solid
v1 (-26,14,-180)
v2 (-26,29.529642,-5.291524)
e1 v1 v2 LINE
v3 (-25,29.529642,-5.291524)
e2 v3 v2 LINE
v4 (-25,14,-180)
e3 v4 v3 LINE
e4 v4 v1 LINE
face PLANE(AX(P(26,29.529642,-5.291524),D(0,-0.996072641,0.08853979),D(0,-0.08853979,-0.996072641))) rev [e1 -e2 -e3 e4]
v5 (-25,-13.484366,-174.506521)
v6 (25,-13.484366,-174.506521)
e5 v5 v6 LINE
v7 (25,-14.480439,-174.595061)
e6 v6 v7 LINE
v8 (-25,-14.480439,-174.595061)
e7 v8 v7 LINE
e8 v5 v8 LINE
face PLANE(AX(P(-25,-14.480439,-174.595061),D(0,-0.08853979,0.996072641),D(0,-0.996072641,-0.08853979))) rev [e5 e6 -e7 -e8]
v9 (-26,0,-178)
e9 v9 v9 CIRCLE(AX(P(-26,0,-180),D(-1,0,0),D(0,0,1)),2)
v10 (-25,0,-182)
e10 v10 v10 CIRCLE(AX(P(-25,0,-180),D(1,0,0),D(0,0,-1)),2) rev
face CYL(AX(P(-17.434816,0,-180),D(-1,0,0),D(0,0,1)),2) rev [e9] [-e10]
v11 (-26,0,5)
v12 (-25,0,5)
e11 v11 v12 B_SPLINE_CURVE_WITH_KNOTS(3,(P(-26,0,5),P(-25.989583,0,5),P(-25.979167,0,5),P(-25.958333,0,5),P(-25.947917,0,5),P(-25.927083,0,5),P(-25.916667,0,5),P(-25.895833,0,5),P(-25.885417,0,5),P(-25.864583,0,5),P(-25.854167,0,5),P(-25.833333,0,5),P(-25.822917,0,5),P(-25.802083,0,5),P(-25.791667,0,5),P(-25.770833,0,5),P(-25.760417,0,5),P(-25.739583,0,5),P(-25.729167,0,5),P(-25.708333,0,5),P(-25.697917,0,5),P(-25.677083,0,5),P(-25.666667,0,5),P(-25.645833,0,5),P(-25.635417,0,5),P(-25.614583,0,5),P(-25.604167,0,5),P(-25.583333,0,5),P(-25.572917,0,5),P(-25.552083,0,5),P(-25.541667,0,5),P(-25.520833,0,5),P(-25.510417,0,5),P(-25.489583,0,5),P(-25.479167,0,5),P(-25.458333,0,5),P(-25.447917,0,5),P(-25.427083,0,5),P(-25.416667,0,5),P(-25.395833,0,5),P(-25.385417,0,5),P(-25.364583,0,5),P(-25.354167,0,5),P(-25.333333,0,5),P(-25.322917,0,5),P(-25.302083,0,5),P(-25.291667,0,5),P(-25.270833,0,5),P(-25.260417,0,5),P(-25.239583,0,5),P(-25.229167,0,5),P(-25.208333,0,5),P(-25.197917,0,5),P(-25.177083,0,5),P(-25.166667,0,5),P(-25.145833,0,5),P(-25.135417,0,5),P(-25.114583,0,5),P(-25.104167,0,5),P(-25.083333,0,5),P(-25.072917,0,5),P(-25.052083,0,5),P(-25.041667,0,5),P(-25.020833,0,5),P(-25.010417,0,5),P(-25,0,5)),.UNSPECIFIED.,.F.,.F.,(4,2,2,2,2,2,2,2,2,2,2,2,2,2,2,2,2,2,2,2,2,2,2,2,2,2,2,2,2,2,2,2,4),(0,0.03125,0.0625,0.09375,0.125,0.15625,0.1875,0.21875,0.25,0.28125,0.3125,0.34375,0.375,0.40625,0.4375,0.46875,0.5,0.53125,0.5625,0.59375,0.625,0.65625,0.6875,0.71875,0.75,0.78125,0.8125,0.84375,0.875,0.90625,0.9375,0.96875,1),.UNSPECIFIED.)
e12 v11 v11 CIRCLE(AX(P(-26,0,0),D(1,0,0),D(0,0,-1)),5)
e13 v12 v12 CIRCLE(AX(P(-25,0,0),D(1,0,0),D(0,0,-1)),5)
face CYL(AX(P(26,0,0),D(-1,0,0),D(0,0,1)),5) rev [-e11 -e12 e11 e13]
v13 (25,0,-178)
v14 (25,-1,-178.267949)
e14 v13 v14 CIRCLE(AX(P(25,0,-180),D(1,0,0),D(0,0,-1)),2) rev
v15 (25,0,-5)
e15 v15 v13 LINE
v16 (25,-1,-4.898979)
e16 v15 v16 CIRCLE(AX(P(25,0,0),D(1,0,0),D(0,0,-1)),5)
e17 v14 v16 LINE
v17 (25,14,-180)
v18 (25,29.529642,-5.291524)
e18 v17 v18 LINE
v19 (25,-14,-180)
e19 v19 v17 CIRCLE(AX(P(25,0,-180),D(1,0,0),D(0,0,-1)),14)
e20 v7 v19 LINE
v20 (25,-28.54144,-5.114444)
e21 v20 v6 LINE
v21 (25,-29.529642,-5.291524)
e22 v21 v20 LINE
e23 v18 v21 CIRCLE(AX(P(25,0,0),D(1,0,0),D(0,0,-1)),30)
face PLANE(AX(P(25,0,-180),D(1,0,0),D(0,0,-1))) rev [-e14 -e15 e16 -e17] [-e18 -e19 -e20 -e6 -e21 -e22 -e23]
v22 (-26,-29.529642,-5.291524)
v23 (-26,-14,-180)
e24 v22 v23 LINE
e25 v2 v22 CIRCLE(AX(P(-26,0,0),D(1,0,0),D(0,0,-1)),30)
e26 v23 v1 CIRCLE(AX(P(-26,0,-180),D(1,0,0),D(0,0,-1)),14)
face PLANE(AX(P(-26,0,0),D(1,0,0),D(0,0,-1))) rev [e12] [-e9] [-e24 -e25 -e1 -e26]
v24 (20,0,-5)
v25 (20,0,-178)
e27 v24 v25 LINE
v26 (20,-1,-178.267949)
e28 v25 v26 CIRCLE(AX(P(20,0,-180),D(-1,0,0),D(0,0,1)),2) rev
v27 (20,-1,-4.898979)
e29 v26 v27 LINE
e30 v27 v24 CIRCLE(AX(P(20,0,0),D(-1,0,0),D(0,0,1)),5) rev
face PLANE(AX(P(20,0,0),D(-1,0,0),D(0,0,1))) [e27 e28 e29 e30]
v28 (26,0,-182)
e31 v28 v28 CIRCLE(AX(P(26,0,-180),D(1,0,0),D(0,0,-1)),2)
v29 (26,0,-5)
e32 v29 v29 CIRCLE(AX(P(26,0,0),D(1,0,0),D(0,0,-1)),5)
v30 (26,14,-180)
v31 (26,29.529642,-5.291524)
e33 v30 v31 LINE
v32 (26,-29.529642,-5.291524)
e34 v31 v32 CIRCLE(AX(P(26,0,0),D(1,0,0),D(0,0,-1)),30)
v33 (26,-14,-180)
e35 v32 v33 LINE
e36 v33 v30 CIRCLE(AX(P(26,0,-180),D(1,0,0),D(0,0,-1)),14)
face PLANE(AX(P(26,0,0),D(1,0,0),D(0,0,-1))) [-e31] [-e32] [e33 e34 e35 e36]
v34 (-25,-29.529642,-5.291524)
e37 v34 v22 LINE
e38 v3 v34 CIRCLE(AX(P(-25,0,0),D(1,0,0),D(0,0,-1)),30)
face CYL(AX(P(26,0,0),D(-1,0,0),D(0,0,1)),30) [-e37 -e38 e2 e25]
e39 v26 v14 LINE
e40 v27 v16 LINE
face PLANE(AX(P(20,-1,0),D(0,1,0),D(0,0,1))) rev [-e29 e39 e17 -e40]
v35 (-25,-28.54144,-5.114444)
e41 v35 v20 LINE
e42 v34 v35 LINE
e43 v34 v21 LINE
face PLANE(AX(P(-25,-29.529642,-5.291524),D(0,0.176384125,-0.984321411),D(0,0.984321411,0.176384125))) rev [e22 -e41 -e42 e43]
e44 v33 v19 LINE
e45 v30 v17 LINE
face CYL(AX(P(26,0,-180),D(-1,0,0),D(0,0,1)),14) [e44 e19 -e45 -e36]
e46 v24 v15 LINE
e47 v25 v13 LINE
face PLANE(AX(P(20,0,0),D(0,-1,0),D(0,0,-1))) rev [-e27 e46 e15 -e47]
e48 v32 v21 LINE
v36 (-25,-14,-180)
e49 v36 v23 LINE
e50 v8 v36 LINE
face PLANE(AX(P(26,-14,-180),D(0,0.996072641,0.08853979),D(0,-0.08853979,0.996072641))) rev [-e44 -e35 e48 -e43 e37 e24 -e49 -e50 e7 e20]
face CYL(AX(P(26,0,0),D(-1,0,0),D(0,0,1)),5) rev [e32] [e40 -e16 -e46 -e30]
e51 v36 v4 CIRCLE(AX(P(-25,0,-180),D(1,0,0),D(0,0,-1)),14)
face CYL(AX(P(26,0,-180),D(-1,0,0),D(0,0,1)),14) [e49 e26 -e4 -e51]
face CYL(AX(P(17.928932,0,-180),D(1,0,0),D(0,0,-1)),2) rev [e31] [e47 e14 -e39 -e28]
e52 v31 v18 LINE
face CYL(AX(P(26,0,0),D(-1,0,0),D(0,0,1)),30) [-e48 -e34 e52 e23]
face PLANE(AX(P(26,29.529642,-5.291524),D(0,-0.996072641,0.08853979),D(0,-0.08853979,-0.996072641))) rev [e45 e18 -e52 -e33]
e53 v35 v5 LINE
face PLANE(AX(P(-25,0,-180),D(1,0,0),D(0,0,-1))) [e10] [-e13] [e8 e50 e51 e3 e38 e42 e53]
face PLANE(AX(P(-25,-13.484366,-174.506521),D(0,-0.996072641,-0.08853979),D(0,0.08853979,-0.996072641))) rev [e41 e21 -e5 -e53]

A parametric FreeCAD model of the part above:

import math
import FreeCAD as App
import Part
import Sketcher
from FreeCAD import Vector

doc = App.newDocument("Part")
body = doc.addObject("PartDesign::Body", "Body")

# Sketch on YZ plane
sketch1 = body.newObject("Sketcher::SketchObject", "Sketch")
sketch1.AttachmentSupport = (doc.getObject("YZ_Plane"), [""])
sketch1.MapMode = "FlatFace"
sketch1.addGeometry([
    Part.LineSegment(Vector(14, -180, 0), Vector(29.5, -5.3, 0)),  # 0
    Part.ArcOfCircle(Part.Circle(Vector(0, 0, 0), Vector(0, 0, 1), 30), math.radians(-10), math.radians(190)),  # 1
    Part.LineSegment(Vector(-29.5, -5.3, 0), Vector(-14, -180, 0)),  # 2
    Part.ArcOfCircle(Part.Circle(Vector(0, -180, 0), Vector(0, 0, 1), 14), math.radians(180), math.radians(360)),  # 3
    Part.Circle(Vector(0, -180, 0), Vector(0, 0, 1), 2.5),  # 4
    Part.Circle(Vector(0, 0, 0), Vector(0, 0, 1), 5),  # 5
], False)
sketch1.addConstraint([
    Sketcher.Constraint("Coincident", 0, 2, 1, 1),
    Sketcher.Constraint("Coincident", 1, 2, 2, 1),
    Sketcher.Constraint("Coincident", 2, 2, 3, 1),
    Sketcher.Constraint("Coincident", 3, 2, 0, 1),
    Sketcher.Constraint("Coincident", 1, 3, -1, 1),
    Sketcher.Constraint("Coincident", 5, 3, -1, 1),
    Sketcher.Constraint("Coincident", 4, 3, 3, 3),
    Sketcher.Constraint("Symmetric", 2, 2, 3, 2, -2),
    Sketcher.Constraint("Horizontal", 0, 2, 1, 2),
    Sketcher.Constraint("Horizontal", 4, 3, 2, 2),
    Sketcher.Constraint("Diameter", 4, 5.0),
    Sketcher.Constraint("Diameter", 5, 10.0),
    Sketcher.Constraint("Radius", 1, 30.0),
    Sketcher.Constraint("Radius", 3, 14.0),
    Sketcher.Constraint("DistanceY", 3, 3, -1, 1, 180.0),
    Sketcher.Constraint("Distance", 0, 175.397325),
])
pad1 = body.newObject("PartDesign::Pad", "Pad")
pad1.Profile = sketch1
pad1.Length = 52
pad1.Midplane = True

# Sketch on YZ plane
sketch2 = body.newObject("Sketcher::SketchObject", "Sketch001")
sketch2.AttachmentSupport = (doc.getObject("YZ_Plane"), [""])
sketch2.MapMode = "FlatFace"
sketch2.addGeometry([
    Part.LineSegment(Vector(-29.5, -5.3, 0), Vector(-28.5, -5.1, 0)),  # 0
    Part.LineSegment(Vector(-28.5, -5.1, 0), Vector(-13.5, -174.5, 0)),  # 1
    Part.LineSegment(Vector(-13.5, -174.5, 0), Vector(-14.5, -174.6, 0)),  # 2
    Part.LineSegment(Vector(-14.5, -174.6, 0), Vector(-14, -180, 0)),  # 3
    Part.ArcOfCircle(Part.Circle(Vector(0, -180, 0), Vector(0, 0, 1), 14), math.radians(180), math.radians(360)),  # 4
    Part.LineSegment(Vector(14, -180, 0), Vector(29.5, -5.3, 0)),  # 5
    Part.ArcOfCircle(Part.Circle(Vector(0, 0, 0), Vector(0, 0, 1), 30), math.radians(-10), math.radians(190)),  # 6
], False)
sketch2.addConstraint([
    Sketcher.Constraint("Coincident", 0, 2, 1, 1),
    Sketcher.Constraint("Coincident", 1, 2, 2, 1),
    Sketcher.Constraint("Coincident", 2, 2, 3, 1),
    Sketcher.Constraint("Coincident", 3, 2, 4, 1),
    Sketcher.Constraint("Coincident", 4, 2, 5, 1),
    Sketcher.Constraint("Coincident", 5, 2, 6, 1),
    Sketcher.Constraint("Coincident", 6, 2, 0, 1),
    Sketcher.Constraint("Coincident", 6, 3, -1, 1),
    Sketcher.Constraint("Symmetric", 3, 2, 4, 2, -2),
    Sketcher.Constraint("Perpendicular", 1, 2),
    Sketcher.Constraint("Perpendicular", 2, 3),
    Sketcher.Constraint("Horizontal", 4, 3, 3, 2),
    Sketcher.Constraint("Horizontal", 5, 2, 6, 2),
    Sketcher.Constraint("Radius", 4, 14.0),
    Sketcher.Constraint("Radius", 6, 30.0),
    Sketcher.Constraint("Distance", 2, 1.0),
    Sketcher.Constraint("DistanceY", 4, 3, -1, 1, 180.0),
    Sketcher.Constraint("DistanceX", 0, 2, 2, 2, 14.061001),
    Sketcher.Constraint("Distance", 3, 5.42625),
    Sketcher.Constraint("DistanceY", 5, 2, 0, 2, 0.17708),
    Sketcher.Constraint("DistanceX", 1, 2, 5, 2, 43.014009),
])
pocket1 = body.newObject("PartDesign::Pocket", "Pocket")
pocket1.Profile = sketch2
pocket1.Length = 50
pocket1.Midplane = True

# Sketch on YZ plane
sketch3 = body.newObject("Sketcher::SketchObject", "Sketch002")
sketch3.AttachmentSupport = (doc.getObject("YZ_Plane"), [""])
sketch3.MapMode = "FlatFace"
sketch3.AttachmentOffset = App.Placement(Vector(0, 0, -26), App.Rotation())
sketch3.addGeometry([
    Part.Circle(Vector(0, -180, 0), Vector(0, 0, 1), 2.7),
    Part.Circle(Vector(0, -180, 0), Vector(0, 0, 1), 2),
], False)
sketch3.addConstraint([
    Sketcher.Constraint("Coincident", 1, 3, 0, 3),
    Sketcher.Constraint("PointOnObject", 0, 3, -2),
    Sketcher.Constraint("Diameter", 1, 4.0),
    Sketcher.Constraint("DistanceY", 0, 3, -1, 1, 180.0),
    Sketcher.Constraint("Diameter", 0, 5.349393),
])
pad2 = body.newObject("PartDesign::Pad", "Pad001")
pad2.Profile = sketch3
pad2.Length = 1

# Sketch on YZ plane
sketch4 = body.newObject("Sketcher::SketchObject", "Sketch003")
sketch4.AttachmentSupport = (doc.getObject("YZ_Plane"), [""])
sketch4.MapMode = "FlatFace"
sketch4.AttachmentOffset = App.Placement(Vector(0, 0, 25), App.Rotation())
sketch4.addGeometry([
    Part.Circle(Vector(0, -180, 0), Vector(0, 0, 1), 2.5),
    Part.Circle(Vector(0, -180, 0), Vector(0, 0, 1), 2),
], False)
sketch4.addConstraint([
    Sketcher.Constraint("Coincident", 1, 3, 0, 3),
    Sketcher.Constraint("PointOnObject", 0, 3, -2),
    Sketcher.Constraint("Diameter", 0, 5.0),
    Sketcher.Constraint("Diameter", 1, 4.0),
    Sketcher.Constraint("DistanceY", 0, 3, -1, 1, 180.0),
])
pad3 = body.newObject("PartDesign::Pad", "Pad002")
pad3.Profile = sketch4
pad3.Length = 1

# Sketch on YZ plane
sketch5 = body.newObject("Sketcher::SketchObject", "Sketch004")
sketch5.AttachmentSupport = (doc.getObject("YZ_Plane"), [""])
sketch5.MapMode = "FlatFace"
sketch5.AttachmentOffset = App.Placement(Vector(0, 0, 20), App.Rotation())
sketch5.addGeometry([
    Part.LineSegment(Vector(0, -5, 0), Vector(0, -178, 0)),
    Part.ArcOfCircle(Part.Circle(Vector(0, -180, 0), Vector(0, 0, 1), 2), math.radians(90), math.radians(120)),
    Part.LineSegment(Vector(-1, -178.3, 0), Vector(-1, -4.9, 0)),
    Part.ArcOfCircle(Part.Circle(Vector(0, 0, 0), Vector(0, 0, 1), 5), math.radians(-101.54), math.radians(-90)),
], False)
sketch5.addConstraint([
    Sketcher.Constraint("Coincident", 0, 2, 1, 1),
    Sketcher.Constraint("Coincident", 1, 2, 2, 1),
    Sketcher.Constraint("Coincident", 2, 2, 3, 1),
    Sketcher.Constraint("Coincident", 3, 2, 0, 1),
    Sketcher.Constraint("Vertical", 0),
    Sketcher.Constraint("Vertical", 2),
    Sketcher.Constraint("Coincident", 3, 3, -1, 1),
    Sketcher.Constraint("PointOnObject", 1, 3, -2),
    Sketcher.Constraint("PointOnObject", 0, 2, -2),
    Sketcher.Constraint("Radius", 1, 2.0),
    Sketcher.Constraint("Radius", 3, 5.0),
    Sketcher.Constraint("DistanceY", 0, 2, 0, 1, 173.0),
    Sketcher.Constraint("DistanceX", 1, 2, -1, 1, 1.0),
])
pad4 = body.newObject("PartDesign::Pad", "Pad003")
pad4.Profile = sketch5
pad4.Length = 5

doc.recompute()
